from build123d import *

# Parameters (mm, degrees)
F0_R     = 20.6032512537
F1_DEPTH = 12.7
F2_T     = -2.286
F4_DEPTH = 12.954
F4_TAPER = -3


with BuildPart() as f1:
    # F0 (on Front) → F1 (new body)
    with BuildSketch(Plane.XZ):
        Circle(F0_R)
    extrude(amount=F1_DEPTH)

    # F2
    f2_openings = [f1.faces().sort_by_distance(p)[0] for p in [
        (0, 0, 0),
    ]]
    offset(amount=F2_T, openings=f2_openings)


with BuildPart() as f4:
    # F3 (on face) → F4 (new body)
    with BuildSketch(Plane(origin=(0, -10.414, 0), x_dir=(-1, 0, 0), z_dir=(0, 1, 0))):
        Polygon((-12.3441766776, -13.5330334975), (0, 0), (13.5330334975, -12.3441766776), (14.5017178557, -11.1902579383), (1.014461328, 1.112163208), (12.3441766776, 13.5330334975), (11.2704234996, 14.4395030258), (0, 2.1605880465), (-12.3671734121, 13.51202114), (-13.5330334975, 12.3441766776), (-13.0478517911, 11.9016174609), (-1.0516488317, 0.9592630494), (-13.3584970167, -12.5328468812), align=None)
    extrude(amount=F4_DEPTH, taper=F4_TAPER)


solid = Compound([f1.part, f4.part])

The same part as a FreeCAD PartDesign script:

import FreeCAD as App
import Part
import Sketcher
Q = App.Units.Quantity


def faces_at(feature, points):
    """Names of the faces that lie closest to the given points."""
    faces = feature.Shape.Faces
    near = lambda p: min(range(len(faces)), key=lambda i: faces[i].distToShape(Part.Vertex(*p))[0])
    return sorted({f"Face{near(p) + 1}" for p in points})


def add_polygon(sketch, points):
    """Adds a closed chain of lines whose ends are joined by coincident constraints."""
    first, n = sketch.GeometryCount, len(points)
    for a, b in zip(points, points[1:] + points[:1]):
        sketch.addGeometry(Part.LineSegment(App.Vector(*a, 0), App.Vector(*b, 0)), False)
    for i in range(n):
        sketch.addConstraint(Sketcher.Constraint("Coincident", first + i, 2, first + (i + 1) % n, 1))

doc = App.newDocument("Part")
body = doc.addObject("PartDesign::Body", "Body")

sketch1 = doc.addObject("Sketcher::SketchObject", "Sketch")
body.addObject(sketch1)
sketch1.AttachmentSupport = (doc.XZ_Plane, [""])
sketch1.MapMode = "FlatFace"
sketch1.addGeometry(Part.Circle(App.Vector(0, 0, 0), App.Vector(0, 0, 1), 20.603251), False)
sketch1.addConstraint([
    Sketcher.Constraint("Coincident", 0, 3, -1, 1),
    Sketcher.Constraint("Diameter", 0, 41.206503),
])
pad1 = doc.addObject("PartDesign::Pad", "Pad")
body.addObject(pad1)
pad1.Profile = sketch1
pad1.Length = Q("0.5 in")
doc.recompute()

thickness = doc.addObject("PartDesign::Thickness", "Thickness")
body.addObject(thickness)
thickness.Base = (pad1, faces_at(pad1, [(0, 0, 0)]))
thickness.Value = Q("0.09 in")
thickness.Reversed = True
thickness.Join = "Arc"
body2 = doc.addObject("PartDesign::Body", "Body001")

sketch2 = doc.addObject("Sketcher::SketchObject", "Sketch001")
body2.addObject(sketch2)
sketch2.AttachmentSupport = (doc.getObject("XZ_Plane001"), [""])
sketch2.MapMode = "FlatFace"
sketch2.AttachmentOffset = App.Placement(App.Vector(0, 0, 0.41 * 25.4), App.Rotation())
add_polygon(sketch2, [(12.344177, -13.533033), (0, 0), (-13.533033, -12.344177), (-14.501718, -11.190258), (-1.014461, 1.112163), (-12.344177, 13.533033), (-11.270423, 14.439503), (0, 2.160588), (12.367173, 13.512021), (13.533033, 12.344177), (13.047852, 11.901617), (1.051649, 0.959263), (13.358497, -12.532847)])
sketch2.addConstraint([
    Sketcher.Constraint("Coincident", 0, 2, -1, 1),
    Sketcher.Constraint("Symmetric", 1, 2, 8, 2, -1, 1),
    Sketcher.Constraint("Symmetric", 4, 2, 12, 2, -1, 1),
    Sketcher.Constraint("PointOnObject", 6, 2, -2),
    Sketcher.Constraint("Perpendicular", 0, 1),
    Sketcher.Constraint("Parallel", 1, 3),
    Sketcher.Constraint("Perpendicular", 3, 4),
    Sketcher.Constraint("Perpendicular", 6, 7),
    Sketcher.Constraint("Perpendicular", 4, 9),
    Sketcher.Constraint("Parallel", 9, 10),
    Sketcher.Constraint("Perpendicular", 10, 11),
    Sketcher.Constraint("Equal", 0, 1),
    Sketcher.Constraint("DistanceX", 7, 2, 8, 2, Q("0.0459 in")),
    Sketcher.Constraint("DistanceY", 10, 2, 3, 2, 0.1529),
    Sketcher.Constraint("Distance", 0, 18.317251),
    Sketcher.Constraint("Distance", 2, 1.506611),
    Sketcher.Constraint("Distance", 3, 18.255291),
    Sketcher.Constraint("Distance", 6, 16.667159),
    Sketcher.Constraint("Distance", 7, 16.78696),
    Sketcher.Constraint("Distance", 8, 1.650179),
    Sketcher.Constraint("Distance", 10, 16.237118),
    Sketcher.Constraint("Distance", 11, 18.26186),
    Sketcher.Constraint("DistanceX", 3, 2, -1, 1, 1.014461),
])
pad2 = doc.addObject("PartDesign::Pad", "Pad001")
body2.addObject(pad2)
pad2.Profile = sketch2
pad2.Length = Q("0.51 in")
pad2.Reversed = True
pad2.TaperAngle = 3

doc.recompute()
